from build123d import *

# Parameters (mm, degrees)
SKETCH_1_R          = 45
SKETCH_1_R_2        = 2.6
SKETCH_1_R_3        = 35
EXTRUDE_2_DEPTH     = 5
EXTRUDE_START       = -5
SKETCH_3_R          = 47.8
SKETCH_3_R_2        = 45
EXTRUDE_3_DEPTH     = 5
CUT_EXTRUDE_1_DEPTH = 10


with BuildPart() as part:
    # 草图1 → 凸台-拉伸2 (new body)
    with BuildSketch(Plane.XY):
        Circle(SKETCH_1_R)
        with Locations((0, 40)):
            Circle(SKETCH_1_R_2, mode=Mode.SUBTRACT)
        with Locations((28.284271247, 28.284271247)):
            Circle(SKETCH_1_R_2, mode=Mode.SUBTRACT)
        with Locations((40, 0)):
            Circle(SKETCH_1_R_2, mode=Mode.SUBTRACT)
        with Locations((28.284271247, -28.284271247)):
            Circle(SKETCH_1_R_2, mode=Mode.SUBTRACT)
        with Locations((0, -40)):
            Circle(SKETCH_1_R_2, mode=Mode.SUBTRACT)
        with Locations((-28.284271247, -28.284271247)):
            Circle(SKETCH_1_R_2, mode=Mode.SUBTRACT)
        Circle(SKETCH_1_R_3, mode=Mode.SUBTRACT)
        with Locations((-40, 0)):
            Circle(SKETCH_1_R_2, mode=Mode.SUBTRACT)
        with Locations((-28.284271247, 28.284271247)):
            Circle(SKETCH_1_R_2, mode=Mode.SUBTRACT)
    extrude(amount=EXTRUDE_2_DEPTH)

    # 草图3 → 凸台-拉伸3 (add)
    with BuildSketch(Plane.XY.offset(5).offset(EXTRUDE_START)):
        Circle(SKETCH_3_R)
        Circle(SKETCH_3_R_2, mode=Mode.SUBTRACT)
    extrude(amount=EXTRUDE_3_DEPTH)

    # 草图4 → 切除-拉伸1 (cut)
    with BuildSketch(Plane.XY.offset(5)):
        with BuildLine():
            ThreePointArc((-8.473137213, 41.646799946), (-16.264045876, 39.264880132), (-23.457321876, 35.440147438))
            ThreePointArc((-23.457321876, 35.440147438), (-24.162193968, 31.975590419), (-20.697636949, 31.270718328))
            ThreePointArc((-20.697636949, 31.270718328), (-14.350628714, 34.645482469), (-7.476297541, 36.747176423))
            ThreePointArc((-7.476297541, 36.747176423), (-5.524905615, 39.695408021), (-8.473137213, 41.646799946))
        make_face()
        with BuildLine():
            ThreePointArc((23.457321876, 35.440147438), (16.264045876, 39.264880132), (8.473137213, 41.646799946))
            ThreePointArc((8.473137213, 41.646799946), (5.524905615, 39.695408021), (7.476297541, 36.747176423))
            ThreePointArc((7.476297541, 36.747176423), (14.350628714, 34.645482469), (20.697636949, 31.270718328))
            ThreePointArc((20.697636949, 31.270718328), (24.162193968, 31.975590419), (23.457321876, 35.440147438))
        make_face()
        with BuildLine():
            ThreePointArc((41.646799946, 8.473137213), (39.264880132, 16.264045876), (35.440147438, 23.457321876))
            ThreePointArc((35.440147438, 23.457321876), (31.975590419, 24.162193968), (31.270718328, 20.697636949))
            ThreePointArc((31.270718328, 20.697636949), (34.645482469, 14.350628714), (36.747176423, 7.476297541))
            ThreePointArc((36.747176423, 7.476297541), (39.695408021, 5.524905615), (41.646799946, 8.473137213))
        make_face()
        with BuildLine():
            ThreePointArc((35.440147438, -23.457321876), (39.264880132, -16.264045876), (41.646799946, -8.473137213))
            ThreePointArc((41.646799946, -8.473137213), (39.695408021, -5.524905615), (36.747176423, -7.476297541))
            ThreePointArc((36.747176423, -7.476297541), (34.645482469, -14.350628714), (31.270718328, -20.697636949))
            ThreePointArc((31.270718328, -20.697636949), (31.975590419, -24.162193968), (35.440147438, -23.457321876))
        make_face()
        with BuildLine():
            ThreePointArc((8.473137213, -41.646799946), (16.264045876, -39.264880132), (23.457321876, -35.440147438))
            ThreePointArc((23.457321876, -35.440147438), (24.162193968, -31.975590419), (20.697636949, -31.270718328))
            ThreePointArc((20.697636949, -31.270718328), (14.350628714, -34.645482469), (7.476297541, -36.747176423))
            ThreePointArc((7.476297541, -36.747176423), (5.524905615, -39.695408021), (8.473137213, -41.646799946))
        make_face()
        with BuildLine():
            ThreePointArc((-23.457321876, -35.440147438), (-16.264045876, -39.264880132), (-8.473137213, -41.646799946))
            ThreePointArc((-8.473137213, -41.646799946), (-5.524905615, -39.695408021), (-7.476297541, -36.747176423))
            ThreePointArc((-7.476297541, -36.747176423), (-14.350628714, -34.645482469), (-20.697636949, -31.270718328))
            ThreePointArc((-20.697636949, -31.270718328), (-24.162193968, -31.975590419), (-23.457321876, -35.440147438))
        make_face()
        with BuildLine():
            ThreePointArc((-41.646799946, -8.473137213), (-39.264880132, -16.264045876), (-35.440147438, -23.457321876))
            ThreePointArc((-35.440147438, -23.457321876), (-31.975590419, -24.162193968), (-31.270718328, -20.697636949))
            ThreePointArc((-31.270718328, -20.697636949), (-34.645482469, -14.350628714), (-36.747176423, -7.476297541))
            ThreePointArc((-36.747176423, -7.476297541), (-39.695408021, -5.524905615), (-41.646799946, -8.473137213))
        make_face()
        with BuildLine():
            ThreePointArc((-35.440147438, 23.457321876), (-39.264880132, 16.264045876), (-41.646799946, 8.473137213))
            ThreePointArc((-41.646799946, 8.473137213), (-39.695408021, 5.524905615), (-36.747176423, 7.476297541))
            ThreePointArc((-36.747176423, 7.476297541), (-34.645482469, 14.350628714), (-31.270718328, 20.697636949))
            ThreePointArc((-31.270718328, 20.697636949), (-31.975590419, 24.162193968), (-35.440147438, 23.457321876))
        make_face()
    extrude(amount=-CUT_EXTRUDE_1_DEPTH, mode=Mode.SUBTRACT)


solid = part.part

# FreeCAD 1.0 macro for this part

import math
import FreeCAD as App
import Part
import Sketcher

doc = App.newDocument("Part")
body = doc.addObject("PartDesign::Body", "Body")

# Sketch on XY plane
sketch1 = body.newObject("Sketcher::SketchObject", "Sketch")
sketch1.AttachmentSupport = (doc.getObject("XY_Plane"), [""])
sketch1.MapMode = "FlatFace"
sketch1.addGeometry([
    Part.Circle(App.Vector(0, 0, 0), App.Vector(0, 0, 1), 45),  # 0
    Part.Circle(App.Vector(-28.284271, -28.284271, 0), App.Vector(0, 0, 1), 2.6),  # 1
    Part.Circle(App.Vector(0, -40, 0), App.Vector(0, 0, 1), 2.6),  # 2
    Part.Circle(App.Vector(28.284271, -28.284271, 0), App.Vector(0, 0, 1), 2.6),  # 3
    Part.Circle(App.Vector(-40, 0, 0), App.Vector(0, 0, 1), 2.6),  # 4
    Part.Circle(App.Vector(-28.284271, 28.284271, 0), App.Vector(0, 0, 1), 2.6),  # 5
    Part.Circle(App.Vector(0, 0, 0), App.Vector(0, 0, 1), 35),  # 6
    Part.Circle(App.Vector(40, 0, 0), App.Vector(0, 0, 1), 2.6),  # 7
    Part.Circle(App.Vector(0, 40, 0), App.Vector(0, 0, 1), 2.6),  # 8
    Part.Circle(App.Vector(28.284271, 28.284271, 0), App.Vector(0, 0, 1), 2.6),  # 9
], False)
sketch1.addConstraint([
    Sketcher.Constraint("Coincident", 0, 3, -1, 1),
    Sketcher.Constraint("Coincident", 6, 3, -1, 1),
    Sketcher.Constraint("Equal", 1, 2),
    Sketcher.Constraint("Equal", 2, 3),
    Sketcher.Constraint("Equal", 3, 4),
    Sketcher.Constraint("Equal", 4, 5),
    Sketcher.Constraint("Equal", 5, 7),
    Sketcher.Constraint("Equal", 7, 8),
    Sketcher.Constraint("Equal", 8, 9),
    Sketcher.Constraint("Symmetric", 3, 3, 5, 3, -1, 1),
    Sketcher.Constraint("Symmetric", 4, 3, 7, 3, -1, 1),
    Sketcher.Constraint("Symmetric", 2, 3, 8, 3, -1, 1),
    Sketcher.Constraint("Symmetric", 1, 3, 9, 3, -1, 1),
    Sketcher.Constraint("Symmetric", 1, 3, 3, 3, -2),
    Sketcher.Constraint("PointOnObject", 2, 3, -2),
    Sketcher.Constraint("PointOnObject", 4, 3, -1),
    Sketcher.Constraint("Diameter", 0, 90.0),
    Sketcher.Constraint("Diameter", 6, 70.0),
    Sketcher.Constraint("Diameter", 1, 5.2),
    Sketcher.Constraint("DistanceY", 2, 3, -1, 1, 40.0),
    Sketcher.Constraint("DistanceX", 4, 3, -1, 1, 40.0),
    Sketcher.Constraint("DistanceX", 1, 3, -1, 1, 28.284271),
    Sketcher.Constraint("DistanceY", 1, 3, -1, 1, 28.284271),
])
pad1 = body.newObject("PartDesign::Pad", "Pad")
pad1.Profile = sketch1
pad1.Length = 5

# Sketch on XY plane
sketch2 = body.newObject("Sketcher::SketchObject", "Sketch001")
sketch2.AttachmentSupport = (doc.getObject("XY_Plane"), [""])
sketch2.MapMode = "FlatFace"
sketch2.addGeometry([
    Part.Circle(App.Vector(0, 0, 0), App.Vector(0, 0, 1), 47.8),
    Part.Circle(App.Vector(0, 0, 0), App.Vector(0, 0, 1), 45),
], False)
sketch2.addConstraint([
    Sketcher.Constraint("Coincident", 0, 3, -1, 1),
    Sketcher.Constraint("Coincident", 1, 3, -1, 1),
    Sketcher.Constraint("Diameter", 1, 90.0),
    Sketcher.Constraint("Diameter", 0, 95.6),
])
pad2 = body.newObject("PartDesign::Pad", "Pad001")
pad2.Profile = sketch2
pad2.Length = 5

# Sketch on XY plane
sketch3 = body.newObject("Sketcher::SketchObject", "Sketch002")
sketch3.AttachmentSupport = (doc.getObject("XY_Plane"), [""])
sketch3.MapMode = "FlatFace"
sketch3.AttachmentOffset = App.Placement(App.Vector(0, 0, 5), App.Rotation())
sketch3.addGeometry([
    Part.ArcOfCircle(Part.Circle(App.Vector(0, 0, 0), App.Vector(0, 0, 1), 42.5), math.radians(101.5), math.radians(123.5)),  # 0
    Part.ArcOfCircle(Part.Circle(App.Vector(-22.077479, 33.355433, 0), App.Vector(0, 0, 1), 2.5), math.radians(123.5), math.radians(303.5)),  # 1
    Part.ArcOfCircle(Part.Circle(App.Vector(0, 0, 0), App.Vector(0, 0, 1), 37.5), math.radians(101.5), math.radians(123.5)),  # 2
    Part.ArcOfCircle(Part.Circle(App.Vector(-7.974717, 39.196988, 0), App.Vector(0, 0, 1), 2.5), math.radians(-78.5), math.radians(101.5)),  # 3
    Part.ArcOfCircle(Part.Circle(App.Vector(0, 0, 0), App.Vector(0, 0, 1), 42.5), math.radians(56.5), math.radians(78.5)),  # 4
    Part.ArcOfCircle(Part.Circle(App.Vector(7.974717, 39.196988, 0), App.Vector(0, 0, 1), 2.5), math.radians(78.5), math.radians(258.5)),  # 5
    Part.ArcOfCircle(Part.Circle(App.Vector(0, 0, 0), App.Vector(0, 0, 1), 37.5), math.radians(56.5), math.radians(78.5)),  # 6
    Part.ArcOfCircle(Part.Circle(App.Vector(22.077479, 33.355433, 0), App.Vector(0, 0, 1), 2.5), math.radians(-123.5), math.radians(56.5)),  # 7
    Part.ArcOfCircle(Part.Circle(App.Vector(0, 0, 0), App.Vector(0, 0, 1), 42.5), math.radians(11.5), math.radians(33.5)),  # 8
    Part.ArcOfCircle(Part.Circle(App.Vector(33.355433, 22.077479, 0), App.Vector(0, 0, 1), 2.5), math.radians(33.5), math.radians(213.5)),  # 9
    Part.ArcOfCircle(Part.Circle(App.Vector(0, 0, 0), App.Vector(0, 0, 1), 37.5), math.radians(11.5), math.radians(33.5)),  # 10
    Part.ArcOfCircle(Part.Circle(App.Vector(39.196988, 7.974717, 0), App.Vector(0, 0, 1), 2.5), math.radians(-168.5), math.radians(11.5)),  # 11
    Part.ArcOfCircle(Part.Circle(App.Vector(0, 0, 0), App.Vector(0, 0, 1), 42.5), math.radians(-33.5), math.radians(-11.5)),  # 12
    Part.ArcOfCircle(Part.Circle(App.Vector(39.196988, -7.974717, 0), App.Vector(0, 0, 1), 2.5), math.radians(-11.5), math.radians(168.5)),  # 13
    Part.ArcOfCircle(Part.Circle(App.Vector(0, 0, 0), App.Vector(0, 0, 1), 37.5), math.radians(-33.5), math.radians(-11.5)),  # 14
    Part.ArcOfCircle(Part.Circle(App.Vector(33.355433, -22.077479, 0), App.Vector(0, 0, 1), 2.5), math.radians(146.5), math.radians(326.5)),  # 15
    Part.ArcOfCircle(Part.Circle(App.Vector(0, 0, 0), App.Vector(0, 0, 1), 42.5), math.radians(-78.5), math.radians(-56.5)),  # 16
    Part.ArcOfCircle(Part.Circle(App.Vector(22.077479, -33.355433, 0), App.Vector(0, 0, 1), 2.5), math.radians(-56.5), math.radians(123.5)),  # 17
    Part.ArcOfCircle(Part.Circle(App.Vector(0, 0, 0), App.Vector(0, 0, 1), 37.5), math.radians(-78.5), math.radians(-56.5)),  # 18
    Part.ArcOfCircle(Part.Circle(App.Vector(7.974717, -39.196988, 0), App.Vector(0, 0, 1), 2.5), math.radians(101.5), math.radians(281.5)),  # 19
    Part.ArcOfCircle(Part.Circle(App.Vector(0, 0, 0), App.Vector(0, 0, 1), 42.5), math.radians(-123.5), math.radians(-101.5)),  # 20
    Part.ArcOfCircle(Part.Circle(App.Vector(-7.974717, -39.196988, 0), App.Vector(0, 0, 1), 2.5), math.radians(-101.5), math.radians(78.5)),  # 21
    Part.ArcOfCircle(Part.Circle(App.Vector(0, 0, 0), App.Vector(0, 0, 1), 37.5), math.radians(-123.5), math.radians(-101.5)),  # 22
    Part.ArcOfCircle(Part.Circle(App.Vector(-22.077479, -33.355433, 0), App.Vector(0, 0, 1), 2.5), math.radians(56.5), math.radians(236.5)),  # 23
    Part.ArcOfCircle(Part.Circle(App.Vector(0, 0, 0), App.Vector(0, 0, 1), 42.5), math.radians(-168.5), math.radians(-146.5)),  # 24
    Part.ArcOfCircle(Part.Circle(App.Vector(-33.355433, -22.077479, 0), App.Vector(0, 0, 1), 2.5), math.radians(-146.5), math.radians(33.5)),  # 25
    Part.ArcOfCircle(Part.Circle(App.Vector(0, 0, 0), App.Vector(0, 0, 1), 37.5), math.radians(-168.5), math.radians(-146.5)),  # 26
    Part.ArcOfCircle(Part.Circle(App.Vector(-39.196988, -7.974717, 0), App.Vector(0, 0, 1), 2.5), math.radians(11.5), math.radians(191.5)),  # 27
    Part.ArcOfCircle(Part.Circle(App.Vector(0, 0, 0), App.Vector(0, 0, 1), 42.5), math.radians(146.5), math.radians(168.5)),  # 28
    Part.ArcOfCircle(Part.Circle(App.Vector(-39.196988, 7.974717, 0), App.Vector(0, 0, 1), 2.5), math.radians(168.5), math.radians(348.5)),  # 29
    Part.ArcOfCircle(Part.Circle(App.Vector(0, 0, 0), App.Vector(0, 0, 1), 37.5), math.radians(146.5), math.radians(168.5)),  # 30
    Part.ArcOfCircle(Part.Circle(App.Vector(-33.355433, 22.077479, 0), App.Vector(0, 0, 1), 2.5), math.radians(-33.5), math.radians(146.5)),  # 31
], False)
sketch3.addConstraint([
    Sketcher.Constraint("Tangent", 0, 2, 1, 1),
    Sketcher.Constraint("Tangent", 1, 2, 2, 2),
    Sketcher.Constraint("Tangent", 2, 1, 3, 1),
    Sketcher.Constraint("Tangent", 3, 2, 0, 1),
    Sketcher.Constraint("Tangent", 4, 2, 5, 1),
    Sketcher.Constraint("Tangent", 5, 2, 6, 2),
    Sketcher.Constraint("Tangent", 6, 1, 7, 1),
    Sketcher.Constraint("Tangent", 7, 2, 4, 1),
    Sketcher.Constraint("Tangent", 8, 2, 9, 1),
    Sketcher.Constraint("Tangent", 9, 2, 10, 2),
    Sketcher.Constraint("Tangent", 10, 1, 11, 1),
    Sketcher.Constraint("Tangent", 11, 2, 8, 1),
    Sketcher.Constraint("Tangent", 12, 2, 13, 1),
    Sketcher.Constraint("Tangent", 13, 2, 14, 2),
    Sketcher.Constraint("Tangent", 14, 1, 15, 1),
    Sketcher.Constraint("Tangent", 15, 2, 12, 1),
    Sketcher.Constraint("Tangent", 16, 2, 17, 1),
    Sketcher.Constraint("Tangent", 17, 2, 18, 2),
    Sketcher.Constraint("Tangent", 18, 1, 19, 1),
    Sketcher.Constraint("Tangent", 19, 2, 16, 1),
    Sketcher.Constraint("Tangent", 20, 2, 21, 1),
    Sketcher.Constraint("Tangent", 21, 2, 22, 2),
    Sketcher.Constraint("Tangent", 22, 1, 23, 1),
    Sketcher.Constraint("Tangent", 23, 2, 20, 1),
    Sketcher.Constraint("Tangent", 24, 2, 25, 1),
    Sketcher.Constraint("Tangent", 25, 2, 26, 2),
    Sketcher.Constraint("Tangent", 26, 1, 27, 1),
    Sketcher.Constraint("Tangent", 27, 2, 24, 1),
    Sketcher.Constraint("Tangent", 28, 2, 29, 1),
    Sketcher.Constraint("Tangent", 29, 2, 30, 2),
    Sketcher.Constraint("Tangent", 30, 1, 31, 1),
    Sketcher.Constraint("Tangent", 31, 2, 28, 1),
    Sketcher.Constraint("Coincident", 0, 3, -1, 1),
    Sketcher.Constraint("Coincident", 2, 3, -1, 1),
    Sketcher.Constraint("Coincident", 4, 3, -1, 1),
    Sketcher.Constraint("Coincident", 6, 3, -1, 1),
    Sketcher.Constraint("Coincident", 8, 3, -1, 1),
    Sketcher.Constraint("Coincident", 10, 3, -1, 1),
    Sketcher.Constraint("Coincident", 12, 3, -1, 1),
    Sketcher.Constraint("Coincident", 14, 3, -1, 1),
    Sketcher.Constraint("Coincident", 16, 3, -1, 1),
    Sketcher.Constraint("Coincident", 18, 3, -1, 1),
    Sketcher.Constraint("Coincident", 20, 3, -1, 1),
    Sketcher.Constraint("Coincident", 22, 3, -1, 1),
    Sketcher.Constraint("Coincident", 24, 3, -1, 1),
    Sketcher.Constraint("Coincident", 26, 3, -1, 1),
    Sketcher.Constraint("Coincident", 28, 3, -1, 1),
    Sketcher.Constraint("Coincident", 30, 3, -1, 1),
    Sketcher.Constraint("Equal", 0, 4),
    Sketcher.Constraint("Equal", 3, 5),
    Sketcher.Constraint("Equal", 4, 8),
    Sketcher.Constraint("Equal", 7, 9),
    Sketcher.Constraint("Equal", 8, 12),
    Sketcher.Constraint("Equal", 11, 13),
    Sketcher.Constraint("Equal", 12, 16),
    Sketcher.Constraint("Equal", 15, 17),
    Sketcher.Constraint("Equal", 16, 20),
    Sketcher.Constraint("Equal", 19, 21),
    Sketcher.Constraint("Equal", 20, 24),
    Sketcher.Constraint("Equal", 23, 25),
    Sketcher.Constraint("Equal", 24, 28),
    Sketcher.Constraint("Equal", 27, 29),
    Sketcher.Constraint("Horizontal", 3, 3, 5, 3),
    Sketcher.Constraint("Horizontal", 1, 3, 7, 3),
    Sketcher.Constraint("Horizontal", 19, 3, 21, 3),
    Sketcher.Constraint("Horizontal", 17, 3, 23, 3),
    Sketcher.Constraint("Horizontal", 15, 3, 25, 3),
    Sketcher.Constraint("Horizontal", 13, 3, 27, 3),
    Sketcher.Constraint("Horizontal", 11, 3, 29, 3),
    Sketcher.Constraint("Horizontal", 9, 3, 31, 3),
    Sketcher.Constraint("Vertical", 11, 3, 13, 3),
    Sketcher.Constraint("Vertical", 9, 3, 15, 3),
    Sketcher.Constraint("Vertical", 7, 3, 17, 3),
    Sketcher.Constraint("Vertical", 5, 3, 19, 3),
    Sketcher.Constraint("Radius", 0, 42.5),
    Sketcher.Constraint("Radius", 1, 2.5),
    Sketcher.Constraint("DistanceY", -1, 1, 3, 2, 41.6468),
    Sketcher.Constraint("DistanceX", -1, 1, 11, 2, 41.6468),
    Sketcher.Constraint("DistanceX", 1, 3, -1, 1, 22.077479),
    Sketcher.Constraint("DistanceY", -1, 1, 9, 3, 22.077479),
])
pocket1 = body.newObject("PartDesign::Pocket", "Pocket")
pocket1.Profile = sketch3
pocket1.Length = 10

doc.recompute()
